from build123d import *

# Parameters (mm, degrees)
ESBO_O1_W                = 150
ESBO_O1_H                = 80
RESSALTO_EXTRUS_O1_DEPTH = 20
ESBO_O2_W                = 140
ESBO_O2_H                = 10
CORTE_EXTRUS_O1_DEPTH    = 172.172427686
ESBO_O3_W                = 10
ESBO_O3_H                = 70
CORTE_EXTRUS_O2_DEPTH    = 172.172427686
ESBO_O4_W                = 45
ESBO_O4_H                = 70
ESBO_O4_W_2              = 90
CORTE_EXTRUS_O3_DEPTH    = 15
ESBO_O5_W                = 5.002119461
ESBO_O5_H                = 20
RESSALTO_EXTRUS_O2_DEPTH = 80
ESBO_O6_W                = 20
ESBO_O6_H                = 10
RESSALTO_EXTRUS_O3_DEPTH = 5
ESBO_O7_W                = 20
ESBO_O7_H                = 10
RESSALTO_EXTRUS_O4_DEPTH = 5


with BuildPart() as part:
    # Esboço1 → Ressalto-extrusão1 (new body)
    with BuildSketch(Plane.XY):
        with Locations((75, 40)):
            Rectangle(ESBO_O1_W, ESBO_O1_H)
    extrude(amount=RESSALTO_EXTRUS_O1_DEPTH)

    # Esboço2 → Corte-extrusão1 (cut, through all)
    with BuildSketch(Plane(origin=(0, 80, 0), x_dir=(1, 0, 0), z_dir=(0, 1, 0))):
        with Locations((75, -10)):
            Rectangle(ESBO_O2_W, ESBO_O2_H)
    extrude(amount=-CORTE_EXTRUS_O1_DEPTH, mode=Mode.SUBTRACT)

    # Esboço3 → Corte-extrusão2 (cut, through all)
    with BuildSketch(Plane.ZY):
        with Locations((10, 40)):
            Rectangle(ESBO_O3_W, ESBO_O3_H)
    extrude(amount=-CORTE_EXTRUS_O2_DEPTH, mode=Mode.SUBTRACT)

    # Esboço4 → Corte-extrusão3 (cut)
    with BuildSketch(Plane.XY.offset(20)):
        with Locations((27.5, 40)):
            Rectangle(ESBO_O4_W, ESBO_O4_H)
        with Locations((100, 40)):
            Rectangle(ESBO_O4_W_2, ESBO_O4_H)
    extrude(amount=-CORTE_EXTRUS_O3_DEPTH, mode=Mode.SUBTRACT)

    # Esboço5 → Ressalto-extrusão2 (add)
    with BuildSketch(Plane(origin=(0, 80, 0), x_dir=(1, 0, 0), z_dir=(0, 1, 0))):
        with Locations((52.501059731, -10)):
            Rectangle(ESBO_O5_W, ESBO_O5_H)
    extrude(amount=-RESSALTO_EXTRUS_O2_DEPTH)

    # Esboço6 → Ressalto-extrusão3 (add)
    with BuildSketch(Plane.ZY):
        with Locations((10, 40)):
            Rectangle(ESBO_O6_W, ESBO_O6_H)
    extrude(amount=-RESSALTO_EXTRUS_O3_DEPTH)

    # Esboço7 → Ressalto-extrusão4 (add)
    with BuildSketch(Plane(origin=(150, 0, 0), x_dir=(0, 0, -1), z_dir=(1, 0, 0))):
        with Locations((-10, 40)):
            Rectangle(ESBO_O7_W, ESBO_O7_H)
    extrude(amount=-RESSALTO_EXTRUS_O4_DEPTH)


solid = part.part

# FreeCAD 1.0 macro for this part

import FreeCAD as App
import Part
import Sketcher
from FreeCAD import Vector


def add_polygon(sketch, points):
    """Adds a closed chain of lines whose ends are joined by coincident constraints."""
    first, n = sketch.GeometryCount, len(points)
    for a, b in zip(points, points[1:] + points[:1]):
        sketch.addGeometry(Part.LineSegment(App.Vector(*a, 0), App.Vector(*b, 0)), False)
    for i in range(n):
        sketch.addConstraint(Sketcher.Constraint("Coincident", first + i, 2, first + (i + 1) % n, 1))

doc = App.newDocument("Part")
params = doc.addObject("Spreadsheet::Sheet", "Params")
for row, (alias, value) in enumerate([
    ("sketch1_width", "150 mm"),
    ("sketch1_height", "80 mm"),
    ("pad1_length", "20 mm"),
    ("sketch2_width", "140 mm"),
    ("sketch2_height", "10 mm"),
    ("sketch3_width", "70 mm"),
    ("sketch3_height", "10 mm"),
    ("sketch4_width", "45 mm"),
    ("sketch4_width2", "90 mm"),
    ("sketch4_height", "70 mm"),
    ("pocket3_length", "15 mm"),
    ("sketch5_height", "20 mm"),
    ("pad2_length", "80 mm"),
    ("sketch6_width", "10 mm"),
    ("sketch6_height", "20 mm"),
    ("pad3_length", "5 mm"),
    ("sketch7_width", "10 mm"),
    ("sketch7_height", "20 mm"),
    ("pad4_length", "5 mm"),
], start=1):
    params.set(f"A{row}", alias)
    params.set(f"B{row}", "=" + value)
    params.setAlias(f"B{row}", alias)

body = doc.addObject("PartDesign::Body", "Body")

# Sketch on XY plane
sketch1 = doc.addObject("Sketcher::SketchObject", "Sketch")
body.addObject(sketch1)
sketch1.AttachmentSupport = (doc.XY_Plane, [""])
sketch1.MapMode = "FlatFace"
add_polygon(sketch1, [(0, 80), (0, 0), (150, 0), (150, 80)])  # lines 0-3
sketch1.addConstraint([
    Sketcher.Constraint("Vertical", 0),
    Sketcher.Constraint("Horizontal", 1),
    Sketcher.Constraint("Vertical", 2),
    Sketcher.Constraint("Horizontal", 3),
    Sketcher.Constraint("Coincident", 0, 2, -1, 1),
    Sketcher.Constraint("DistanceX", 1, 1, 1, 2, 150.0),
    Sketcher.Constraint("DistanceY", 0, 2, 0, 1, 80.0),
])
sketch1.setExpression("Constraints[9]", "Params.sketch1_width")
sketch1.setExpression("Constraints[10]", "Params.sketch1_height")
pad1 = doc.addObject("PartDesign::Pad", "Pad")
body.addObject(pad1)
pad1.Profile = sketch1
pad1.setExpression("Length", "Params.pad1_length")

# Sketch on XZ plane
sketch2 = doc.addObject("Sketcher::SketchObject", "Sketch001")
body.addObject(sketch2)
sketch2.AttachmentSupport = (doc.XZ_Plane, [""])
sketch2.MapMode = "FlatFace"
sketch2.AttachmentOffset = App.Placement(Vector(0, 0, -80), App.Rotation())
add_polygon(sketch2, [(5, 5), (5, 15), (145, 15), (145, 5)])  # lines 0-3
sketch2.addConstraint([
    Sketcher.Constraint("Vertical", 0),
    Sketcher.Constraint("Horizontal", 1),
    Sketcher.Constraint("Vertical", 2),
    Sketcher.Constraint("Horizontal", 3),
    Sketcher.Constraint("DistanceX", 1, 1, 1, 2, 140.0),
    Sketcher.Constraint("DistanceY", 0, 1, 0, 2, 10.0),
    Sketcher.Constraint("DistanceX", -1, 1, 0, 2, 5.0),
    Sketcher.Constraint("DistanceY", -1, 1, 0, 2, 15.0),
])
sketch2.setExpression("Constraints[8]", "Params.sketch2_width")
sketch2.setExpression("Constraints[9]", "Params.sketch2_height")
pocket1 = doc.addObject("PartDesign::Pocket", "Pocket")
body.addObject(pocket1)
pocket1.Profile = sketch2
pocket1.Type = "ThroughAll"
pocket1.Reversed = True

# Sketch on YZ plane
sketch3 = doc.addObject("Sketcher::SketchObject", "Sketch002")
body.addObject(sketch3)
sketch3.AttachmentSupport = (doc.YZ_Plane, [""])
sketch3.MapMode = "FlatFace"
add_polygon(sketch3, [(75, 5), (5, 5), (5, 15), (75, 15)])  # lines 0-3
sketch3.addConstraint([
    Sketcher.Constraint("Horizontal", 0),
    Sketcher.Constraint("Vertical", 1),
    Sketcher.Constraint("Horizontal", 2),
    Sketcher.Constraint("Vertical", 3),
    Sketcher.Constraint("DistanceX", 0, 2, 0, 1, 70.0),
    Sketcher.Constraint("DistanceY", 1, 1, 1, 2, 10.0),
    Sketcher.Constraint("DistanceX", -1, 1, 0, 2, 5.0),
    Sketcher.Constraint("DistanceY", -1, 1, 0, 2, 5.0),
])
sketch3.setExpression("Constraints[8]", "Params.sketch3_width")
sketch3.setExpression("Constraints[9]", "Params.sketch3_height")
pocket2 = doc.addObject("PartDesign::Pocket", "Pocket001")
body.addObject(pocket2)
pocket2.Profile = sketch3
pocket2.Type = "ThroughAll"
pocket2.Reversed = True

# Sketch on XY plane
sketch4 = doc.addObject("Sketcher::SketchObject", "Sketch003")
body.addObject(sketch4)
sketch4.AttachmentSupport = (doc.XY_Plane, [""])
sketch4.MapMode = "FlatFace"
sketch4.AttachmentOffset = App.Placement(Vector(0, 0, 20), App.Rotation())
add_polygon(sketch4, [(5, 75), (5, 5), (50, 5), (50, 75)])  # lines 0-3
add_polygon(sketch4, [(55, 75), (55, 5), (145, 5), (145, 75)])  # lines 4-7
sketch4.addConstraint([
    Sketcher.Constraint("Vertical", 0),
    Sketcher.Constraint("Horizontal", 1),
    Sketcher.Constraint("Vertical", 2),
    Sketcher.Constraint("Horizontal", 3),
    Sketcher.Constraint("Vertical", 4),
    Sketcher.Constraint("Horizontal", 5),
    Sketcher.Constraint("Vertical", 6),
    Sketcher.Constraint("Horizontal", 7),
    Sketcher.Constraint("Horizontal", 1, 2, 4, 2),
    Sketcher.Constraint("Horizontal", 3, 2, 6, 2),
    Sketcher.Constraint("DistanceX", 1, 1, 1, 2, 45.0),
    Sketcher.Constraint("DistanceX", 5, 1, 5, 2, 90.0),
    Sketcher.Constraint("DistanceY", 0, 2, 0, 1, 70.0),
    Sketcher.Constraint("DistanceX", -1, 1, 0, 2, 5.0),
    Sketcher.Constraint("DistanceY", -1, 1, 0, 2, 5.0),
    Sketcher.Constraint("DistanceX", -1, 1, 4, 2, 55.0),
])
sketch4.setExpression("Constraints[18]", "Params.sketch4_width")
sketch4.setExpression("Constraints[19]", "Params.sketch4_width2")
sketch4.setExpression("Constraints[20]", "Params.sketch4_height")
pocket3 = doc.addObject("PartDesign::Pocket", "Pocket002")
body.addObject(pocket3)
pocket3.Profile = sketch4
pocket3.setExpression("Length", "Params.pocket3_length")

# Sketch on XZ plane
sketch5 = doc.addObject("Sketcher::SketchObject", "Sketch004")
body.addObject(sketch5)
sketch5.AttachmentSupport = (doc.XZ_Plane, [""])
sketch5.MapMode = "FlatFace"
sketch5.AttachmentOffset = App.Placement(Vector(0, 0, -80), App.Rotation())
add_polygon(sketch5, [(50, 0), (50, 20), (55, 20), (55, 0)])  # lines 0-3
sketch5.addConstraint([
    Sketcher.Constraint("Vertical", 0),
    Sketcher.Constraint("Horizontal", 1),
    Sketcher.Constraint("Vertical", 2),
    Sketcher.Constraint("Horizontal", 3),
    Sketcher.Constraint("PointOnObject", 2, 2, -1),
    Sketcher.Constraint("DistanceY", 0, 1, 0, 2, 20.0),
    Sketcher.Constraint("DistanceX", -1, 1, 0, 2, 50.0),
    Sketcher.Constraint("DistanceX", 1, 1, 1, 2, 5.002119),
])
sketch5.setExpression("Constraints[9]", "Params.sketch5_height")
pad2 = doc.addObject("PartDesign::Pad", "Pad001")
body.addObject(pad2)
pad2.Profile = sketch5
pad2.setExpression("Length", "Params.pad2_length")

# Sketch on YZ plane
sketch6 = doc.addObject("Sketcher::SketchObject", "Sketch005")
body.addObject(sketch6)
sketch6.AttachmentSupport = (doc.YZ_Plane, [""])
sketch6.MapMode = "FlatFace"
add_polygon(sketch6, [(45, 0), (35, 0), (35, 20), (45, 20)])  # lines 0-3
sketch6.addConstraint([
    Sketcher.Constraint("Horizontal", 0),
    Sketcher.Constraint("Vertical", 1),
    Sketcher.Constraint("Horizontal", 2),
    Sketcher.Constraint("Vertical", 3),
    Sketcher.Constraint("PointOnObject", 0, 2, -1),
    Sketcher.Constraint("DistanceX", 0, 2, 0, 1, 10.0),
    Sketcher.Constraint("DistanceY", 1, 1, 1, 2, 20.0),
    Sketcher.Constraint("DistanceX", -1, 1, 0, 2, 35.0),
])
sketch6.setExpression("Constraints[9]", "Params.sketch6_width")
sketch6.setExpression("Constraints[10]", "Params.sketch6_height")
pad3 = doc.addObject("PartDesign::Pad", "Pad002")
body.addObject(pad3)
pad3.Profile = sketch6
pad3.setExpression("Length", "Params.pad3_length")

# Sketch on YZ plane
sketch7 = doc.addObject("Sketcher::SketchObject", "Sketch006")
body.addObject(sketch7)
sketch7.AttachmentSupport = (doc.YZ_Plane, [""])
sketch7.MapMode = "FlatFace"
sketch7.AttachmentOffset = App.Placement(Vector(0, 0, 150), App.Rotation())
add_polygon(sketch7, [(45, 20), (35, 20), (35, 0), (45, 0)])  # lines 0-3
sketch7.addConstraint([
    Sketcher.Constraint("Horizontal", 0),
    Sketcher.Constraint("Vertical", 1),
    Sketcher.Constraint("Horizontal", 2),
    Sketcher.Constraint("Vertical", 3),
    Sketcher.Constraint("PointOnObject", 1, 2, -1),
    Sketcher.Constraint("DistanceX", 0, 2, 0, 1, 10.0),
    Sketcher.Constraint("DistanceY", 1, 2, 1, 1, 20.0),
    Sketcher.Constraint("DistanceX", -1, 1, 0, 2, 35.0),
])
sketch7.setExpression("Constraints[9]", "Params.sketch7_width")
sketch7.setExpression("Constraints[10]", "Params.sketch7_height")
pad4 = doc.addObject("PartDesign::Pad", "Pad003")
body.addObject(pad4)
pad4.Profile = sketch7
pad4.setExpression("Length", "Params.pad4_length")
pad4.Reversed = True

doc.recompute()
